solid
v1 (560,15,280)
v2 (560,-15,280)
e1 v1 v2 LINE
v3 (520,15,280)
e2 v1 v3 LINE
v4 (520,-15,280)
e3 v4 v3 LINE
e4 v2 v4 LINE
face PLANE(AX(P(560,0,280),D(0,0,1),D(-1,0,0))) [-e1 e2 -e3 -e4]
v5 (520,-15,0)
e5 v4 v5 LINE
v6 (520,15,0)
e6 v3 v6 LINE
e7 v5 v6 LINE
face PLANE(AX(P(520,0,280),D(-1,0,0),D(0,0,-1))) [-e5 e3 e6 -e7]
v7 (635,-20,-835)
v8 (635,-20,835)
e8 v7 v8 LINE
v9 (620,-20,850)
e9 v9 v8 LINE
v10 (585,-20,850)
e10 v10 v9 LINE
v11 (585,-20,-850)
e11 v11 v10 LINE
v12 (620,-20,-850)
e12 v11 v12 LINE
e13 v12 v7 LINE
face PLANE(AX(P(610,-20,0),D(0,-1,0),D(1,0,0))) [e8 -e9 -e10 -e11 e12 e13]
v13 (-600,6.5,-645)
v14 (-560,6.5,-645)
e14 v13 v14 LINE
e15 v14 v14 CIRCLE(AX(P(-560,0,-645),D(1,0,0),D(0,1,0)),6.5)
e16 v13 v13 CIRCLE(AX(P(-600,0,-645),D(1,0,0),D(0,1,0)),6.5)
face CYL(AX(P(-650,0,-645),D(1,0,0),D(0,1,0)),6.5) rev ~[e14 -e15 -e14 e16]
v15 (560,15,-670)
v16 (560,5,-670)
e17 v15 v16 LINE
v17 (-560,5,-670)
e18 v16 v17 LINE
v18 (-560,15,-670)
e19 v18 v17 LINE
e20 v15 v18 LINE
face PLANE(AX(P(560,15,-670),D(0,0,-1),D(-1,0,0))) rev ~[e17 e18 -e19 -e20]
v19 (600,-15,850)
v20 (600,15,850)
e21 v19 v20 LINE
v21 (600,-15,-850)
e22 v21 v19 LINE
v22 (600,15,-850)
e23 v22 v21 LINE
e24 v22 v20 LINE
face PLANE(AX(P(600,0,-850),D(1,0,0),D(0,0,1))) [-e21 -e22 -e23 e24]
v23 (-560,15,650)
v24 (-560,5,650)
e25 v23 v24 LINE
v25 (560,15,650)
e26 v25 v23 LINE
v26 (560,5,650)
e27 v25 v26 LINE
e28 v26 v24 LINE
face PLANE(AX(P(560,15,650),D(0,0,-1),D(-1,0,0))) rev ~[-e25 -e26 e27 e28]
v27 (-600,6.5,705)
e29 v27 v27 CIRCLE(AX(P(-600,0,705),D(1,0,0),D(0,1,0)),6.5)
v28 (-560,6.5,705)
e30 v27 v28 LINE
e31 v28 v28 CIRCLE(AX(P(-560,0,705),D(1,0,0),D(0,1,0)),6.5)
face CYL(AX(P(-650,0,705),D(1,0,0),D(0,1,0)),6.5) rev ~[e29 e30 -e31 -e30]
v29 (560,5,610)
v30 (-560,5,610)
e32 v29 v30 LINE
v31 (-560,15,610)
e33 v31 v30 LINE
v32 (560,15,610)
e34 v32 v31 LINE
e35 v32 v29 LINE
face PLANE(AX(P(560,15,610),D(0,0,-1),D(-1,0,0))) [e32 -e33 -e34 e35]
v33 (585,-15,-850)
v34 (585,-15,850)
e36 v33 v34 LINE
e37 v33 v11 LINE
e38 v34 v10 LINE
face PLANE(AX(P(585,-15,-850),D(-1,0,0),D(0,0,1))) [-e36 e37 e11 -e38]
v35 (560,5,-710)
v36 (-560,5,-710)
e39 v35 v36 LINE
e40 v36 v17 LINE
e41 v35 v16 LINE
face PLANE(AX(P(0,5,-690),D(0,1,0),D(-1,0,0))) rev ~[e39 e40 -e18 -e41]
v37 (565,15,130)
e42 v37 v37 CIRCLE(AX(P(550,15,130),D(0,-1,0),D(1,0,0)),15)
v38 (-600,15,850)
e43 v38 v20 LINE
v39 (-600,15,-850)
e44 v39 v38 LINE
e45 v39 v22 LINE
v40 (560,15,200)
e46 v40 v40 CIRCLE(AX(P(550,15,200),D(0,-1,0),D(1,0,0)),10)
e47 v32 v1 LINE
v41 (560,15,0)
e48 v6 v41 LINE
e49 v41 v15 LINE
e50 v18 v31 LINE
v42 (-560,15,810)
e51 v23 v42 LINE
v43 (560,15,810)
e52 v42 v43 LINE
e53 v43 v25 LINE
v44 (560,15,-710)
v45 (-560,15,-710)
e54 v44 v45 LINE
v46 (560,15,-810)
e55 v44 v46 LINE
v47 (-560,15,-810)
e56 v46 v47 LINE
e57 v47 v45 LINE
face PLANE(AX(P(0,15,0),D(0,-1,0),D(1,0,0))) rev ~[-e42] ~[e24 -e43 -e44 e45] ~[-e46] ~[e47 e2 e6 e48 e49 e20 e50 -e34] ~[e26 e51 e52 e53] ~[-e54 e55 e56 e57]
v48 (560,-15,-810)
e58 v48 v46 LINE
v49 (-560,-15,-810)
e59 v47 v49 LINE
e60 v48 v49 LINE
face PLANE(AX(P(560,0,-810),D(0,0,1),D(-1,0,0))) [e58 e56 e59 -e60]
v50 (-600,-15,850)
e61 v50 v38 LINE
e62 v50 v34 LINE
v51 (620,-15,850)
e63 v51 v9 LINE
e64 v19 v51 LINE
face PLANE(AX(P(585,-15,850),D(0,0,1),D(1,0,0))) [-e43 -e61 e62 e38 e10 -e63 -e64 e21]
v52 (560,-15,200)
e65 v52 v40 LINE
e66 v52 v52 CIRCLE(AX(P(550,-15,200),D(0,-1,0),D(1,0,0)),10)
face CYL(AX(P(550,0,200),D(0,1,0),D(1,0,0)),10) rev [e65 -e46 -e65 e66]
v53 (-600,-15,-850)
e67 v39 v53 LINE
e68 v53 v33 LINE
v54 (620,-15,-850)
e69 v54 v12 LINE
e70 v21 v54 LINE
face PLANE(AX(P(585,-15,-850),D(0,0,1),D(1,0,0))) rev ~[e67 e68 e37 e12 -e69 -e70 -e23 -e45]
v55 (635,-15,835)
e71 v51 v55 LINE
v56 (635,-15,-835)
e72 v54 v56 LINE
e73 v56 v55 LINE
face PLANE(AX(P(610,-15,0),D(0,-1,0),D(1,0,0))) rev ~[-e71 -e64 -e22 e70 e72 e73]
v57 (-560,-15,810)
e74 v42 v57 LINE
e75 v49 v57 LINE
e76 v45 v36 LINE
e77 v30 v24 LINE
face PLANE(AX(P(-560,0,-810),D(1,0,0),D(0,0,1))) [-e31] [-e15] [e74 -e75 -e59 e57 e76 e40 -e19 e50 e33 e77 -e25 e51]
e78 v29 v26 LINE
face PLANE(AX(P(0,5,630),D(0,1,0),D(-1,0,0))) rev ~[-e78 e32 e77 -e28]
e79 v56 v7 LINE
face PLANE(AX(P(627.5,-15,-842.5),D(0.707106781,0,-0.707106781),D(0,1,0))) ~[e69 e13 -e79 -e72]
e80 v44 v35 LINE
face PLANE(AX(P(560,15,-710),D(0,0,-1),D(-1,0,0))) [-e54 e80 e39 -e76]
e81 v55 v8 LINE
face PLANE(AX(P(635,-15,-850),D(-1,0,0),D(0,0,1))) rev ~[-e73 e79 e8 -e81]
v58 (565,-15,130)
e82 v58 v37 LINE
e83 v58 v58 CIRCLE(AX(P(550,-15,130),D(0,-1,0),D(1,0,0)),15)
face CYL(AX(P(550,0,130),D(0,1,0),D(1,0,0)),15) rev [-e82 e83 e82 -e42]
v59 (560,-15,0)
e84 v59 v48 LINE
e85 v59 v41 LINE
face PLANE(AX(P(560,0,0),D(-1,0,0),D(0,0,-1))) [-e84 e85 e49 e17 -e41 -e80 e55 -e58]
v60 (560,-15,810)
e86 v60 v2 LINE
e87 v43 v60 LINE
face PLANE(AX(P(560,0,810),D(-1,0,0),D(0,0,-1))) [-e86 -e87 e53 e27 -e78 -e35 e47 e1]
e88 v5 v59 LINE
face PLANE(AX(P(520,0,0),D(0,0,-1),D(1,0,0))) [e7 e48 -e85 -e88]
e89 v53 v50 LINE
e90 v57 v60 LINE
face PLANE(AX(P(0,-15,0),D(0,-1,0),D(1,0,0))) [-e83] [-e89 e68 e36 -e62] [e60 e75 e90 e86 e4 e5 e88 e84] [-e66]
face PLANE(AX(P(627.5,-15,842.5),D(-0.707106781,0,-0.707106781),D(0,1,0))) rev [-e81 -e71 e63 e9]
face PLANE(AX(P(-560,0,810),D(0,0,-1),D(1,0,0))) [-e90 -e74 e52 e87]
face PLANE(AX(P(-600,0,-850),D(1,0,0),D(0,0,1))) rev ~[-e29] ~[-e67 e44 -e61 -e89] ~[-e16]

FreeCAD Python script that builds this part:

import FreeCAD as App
import Part
import Sketcher
from FreeCAD import Vector


def edges_at(feature, points):
    """Names of the edges that pass closest to the given points."""
    edges = feature.Shape.Edges
    near = lambda p: min(range(len(edges)), key=lambda i: edges[i].distToShape(Part.Vertex(*p))[0])
    return sorted({f"Edge{near(p) + 1}" for p in points})

doc = App.newDocument("Part")
body = doc.addObject("PartDesign::Body", "Body")

# Sketch on XZ plane
sketch1 = doc.addObject("Sketcher::SketchObject", "Sketch")
body.addObject(sketch1)
sketch1.AttachmentSupport = (doc.XZ_Plane, [""])
sketch1.MapMode = "FlatFace"
sketch1.addGeometry([
    Part.LineSegment(Vector(-600, 850, 0), Vector(-600, -850, 0)),  # 0
    Part.LineSegment(Vector(-600, -850, 0), Vector(600, -850, 0)),  # 1
    Part.LineSegment(Vector(600, -850, 0), Vector(600, 850, 0)),  # 2
    Part.LineSegment(Vector(600, 850, 0), Vector(-600, 850, 0)),  # 3
    Part.LineSegment(Vector(560, -810, 0), Vector(-560, -810, 0)),  # 4
    Part.LineSegment(Vector(-560, -810, 0), Vector(-560, 810, 0)),  # 5
    Part.LineSegment(Vector(-560, 810, 0), Vector(560, 810, 0)),  # 6
    Part.LineSegment(Vector(560, 810, 0), Vector(560, 280, 0)),  # 7
    Part.LineSegment(Vector(560, 280, 0), Vector(520, 280, 0)),  # 8
    Part.LineSegment(Vector(520, 280, 0), Vector(520, 0, 0)),  # 9
    Part.LineSegment(Vector(520, 0, 0), Vector(560, 0, 0)),  # 10
    Part.LineSegment(Vector(560, 0, 0), Vector(560, -810, 0)),  # 11
    Part.Circle(Vector(550, 130, 0), Vector(0, 0, 1), 15),  # 12
    Part.Circle(Vector(550, 200, 0), Vector(0, 0, 1), 10),  # 13
], False)
sketch1.addConstraint([
    Sketcher.Constraint("Coincident", 0, 2, 1, 1),
    Sketcher.Constraint("Coincident", 1, 2, 2, 1),
    Sketcher.Constraint("Coincident", 2, 2, 3, 1),
    Sketcher.Constraint("Coincident", 3, 2, 0, 1),
    Sketcher.Constraint("Coincident", 4, 2, 5, 1),
    Sketcher.Constraint("Coincident", 5, 2, 6, 1),
    Sketcher.Constraint("Coincident", 6, 2, 7, 1),
    Sketcher.Constraint("Coincident", 7, 2, 8, 1),
    Sketcher.Constraint("Coincident", 8, 2, 9, 1),
    Sketcher.Constraint("Coincident", 9, 2, 10, 1),
    Sketcher.Constraint("Coincident", 10, 2, 11, 1),
    Sketcher.Constraint("Coincident", 11, 2, 4, 1),
    Sketcher.Constraint("Vertical", 0),
    Sketcher.Constraint("Horizontal", 1),
    Sketcher.Constraint("Vertical", 2),
    Sketcher.Constraint("Horizontal", 3),
    Sketcher.Constraint("Horizontal", 4),
    Sketcher.Constraint("Vertical", 5),
    Sketcher.Constraint("Horizontal", 6),
    Sketcher.Constraint("Vertical", 7),
    Sketcher.Constraint("Horizontal", 8),
    Sketcher.Constraint("Vertical", 9),
    Sketcher.Constraint("Horizontal", 10),
    Sketcher.Constraint("Vertical", 11),
    Sketcher.Constraint("Symmetric", 0, 2, 2, 2, -1, 1),
    Sketcher.Constraint("Symmetric", 4, 2, 6, 2, -1, 1),
    Sketcher.Constraint("PointOnObject", 9, 2, -1),
    Sketcher.Constraint("Vertical", 12, 3, 13, 3),
    Sketcher.Constraint("Vertical", 7, 2, 10, 2),
    Sketcher.Constraint("Diameter", 12, 30.0),
    Sketcher.Constraint("Diameter", 13, 20.0),
    Sketcher.Constraint("DistanceX", 1, 1, 1, 2, 1200.0),
    Sketcher.Constraint("DistanceX", 4, 2, 4, 1, 1120.0),
    Sketcher.Constraint("DistanceX", 8, 2, 8, 1, 40.0),
    Sketcher.Constraint("DistanceY", 0, 2, 0, 1, 1700.0),
    Sketcher.Constraint("DistanceY", 5, 1, 5, 2, 1620.0),
    Sketcher.Constraint("DistanceY", 7, 2, 7, 1, 530.0),
    Sketcher.Constraint("DistanceX", -1, 1, 12, 3, 550.0),
    Sketcher.Constraint("DistanceY", -1, 1, 12, 3, 130.0),
    Sketcher.Constraint("DistanceY", -1, 1, 13, 3, 200.0),
])
pad1 = doc.addObject("PartDesign::Pad", "Pad")
body.addObject(pad1)
pad1.Profile = sketch1
pad1.Length = 30
pad1.Midplane = True

# Sketch on XZ plane
sketch2 = doc.addObject("Sketcher::SketchObject", "Sketch001")
body.addObject(sketch2)
sketch2.AttachmentSupport = (doc.XZ_Plane, [""])
sketch2.MapMode = "FlatFace"
sketch2.AttachmentOffset = App.Placement(Vector(0, 0, -15), App.Rotation())
sketch2.addGeometry([
    Part.LineSegment(Vector(560, 650, 0), Vector(560, 610, 0)),  # 0
    Part.LineSegment(Vector(560, 610, 0), Vector(-560, 610, 0)),  # 1
    Part.LineSegment(Vector(-560, 610, 0), Vector(-560, 650, 0)),  # 2
    Part.LineSegment(Vector(-560, 650, 0), Vector(560, 650, 0)),  # 3
    Part.LineSegment(Vector(560, -670, 0), Vector(560, -710, 0)),  # 4
    Part.LineSegment(Vector(560, -710, 0), Vector(-560, -710, 0)),  # 5
    Part.LineSegment(Vector(-560, -710, 0), Vector(-560, -670, 0)),  # 6
    Part.LineSegment(Vector(-560, -670, 0), Vector(560, -670, 0)),  # 7
], False)
sketch2.addConstraint([
    Sketcher.Constraint("Coincident", 0, 2, 1, 1),
    Sketcher.Constraint("Coincident", 1, 2, 2, 1),
    Sketcher.Constraint("Coincident", 2, 2, 3, 1),
    Sketcher.Constraint("Coincident", 3, 2, 0, 1),
    Sketcher.Constraint("Coincident", 4, 2, 5, 1),
    Sketcher.Constraint("Coincident", 5, 2, 6, 1),
    Sketcher.Constraint("Coincident", 6, 2, 7, 1),
    Sketcher.Constraint("Coincident", 7, 2, 4, 1),
    Sketcher.Constraint("Vertical", 0),
    Sketcher.Constraint("Horizontal", 1),
    Sketcher.Constraint("Vertical", 2),
    Sketcher.Constraint("Horizontal", 3),
    Sketcher.Constraint("Vertical", 4),
    Sketcher.Constraint("Horizontal", 5),
    Sketcher.Constraint("Vertical", 6),
    Sketcher.Constraint("Horizontal", 7),
    Sketcher.Constraint("Vertical", 3, 2, 4, 2),
    Sketcher.Constraint("Vertical", 2, 2, 5, 2),
    Sketcher.Constraint("Equal", 2, 4),
    Sketcher.Constraint("DistanceX", 1, 2, 1, 1, 1120.0),
    Sketcher.Constraint("DistanceY", 0, 2, 0, 1, 40.0),
    Sketcher.Constraint("DistanceX", -1, 1, 0, 2, 560.0),
    Sketcher.Constraint("DistanceY", -1, 1, 0, 2, 610.0),
    Sketcher.Constraint("DistanceY", 4, 2, -1, 1, 710.0),
])
pad2 = doc.addObject("PartDesign::Pad", "Pad001")
body.addObject(pad2)
pad2.Profile = sketch2
pad2.Length = 10

# Sketch on YZ plane
sketch3 = doc.addObject("Sketcher::SketchObject", "Sketch002")
body.addObject(sketch3)
sketch3.AttachmentSupport = (doc.YZ_Plane, [""])
sketch3.MapMode = "FlatFace"
sketch3.AttachmentOffset = App.Placement(Vector(0, 0, -600), App.Rotation())
sketch3.addGeometry(Part.Circle(Vector(0, -645, 0), Vector(0, 0, 1), 6.5), False)
sketch3.addConstraint([
    Sketcher.Constraint("PointOnObject", 0, 3, -2),
    Sketcher.Constraint("Diameter", 0, 13.0),
    Sketcher.Constraint("DistanceY", 0, 3, -1, 1, 645.0),
])
doc.recompute()
hole = doc.addObject("PartDesign::Hole", "Hole")
body.addObject(hole)
hole.Profile = sketch3
hole.ThreadType = "None"
hole.Diameter = 13
hole.DepthType = "Dimension"
hole.Depth = 50
hole.DrillPoint = "Angled"
hole.DrillPointAngle = 118
hole.Reversed = True

# Sketch on YZ plane
sketch4 = doc.addObject("Sketcher::SketchObject", "Sketch003")
body.addObject(sketch4)
sketch4.AttachmentSupport = (doc.YZ_Plane, [""])
sketch4.MapMode = "FlatFace"
sketch4.AttachmentOffset = App.Placement(Vector(0, 0, -600), App.Rotation())
sketch4.addGeometry(Part.Circle(Vector(0, 705, 0), Vector(0, 0, 1), 6.5), False)
sketch4.addConstraint([
    Sketcher.Constraint("PointOnObject", 0, 3, -2),
    Sketcher.Constraint("Diameter", 0, 13.0),
    Sketcher.Constraint("DistanceY", -1, 1, 0, 3, 705.0),
])
doc.recompute()
hole2 = doc.addObject("PartDesign::Hole", "Hole001")
body.addObject(hole2)
hole2.Profile = sketch4
hole2.ThreadType = "None"
hole2.Diameter = 13
hole2.DepthType = "Dimension"
hole2.Depth = 50
hole2.DrillPoint = "Angled"
hole2.DrillPointAngle = 118
hole2.Reversed = True

# Sketch on XZ plane
sketch5 = doc.addObject("Sketcher::SketchObject", "Sketch004")
body.addObject(sketch5)
sketch5.AttachmentSupport = (doc.XZ_Plane, [""])
sketch5.MapMode = "FlatFace"
sketch5.AttachmentOffset = App.Placement(Vector(0, 0, 15), App.Rotation())
sketch5.addGeometry([
    Part.LineSegment(Vector(585, 850, 0), Vector(585, -850, 0)),
    Part.LineSegment(Vector(585, -850, 0), Vector(635, -850, 0)),
    Part.LineSegment(Vector(635, -850, 0), Vector(635, 850, 0)),
    Part.LineSegment(Vector(635, 850, 0), Vector(585, 850, 0)),
], False)
sketch5.addConstraint([
    Sketcher.Constraint("Coincident", 0, 2, 1, 1),
    Sketcher.Constraint("Coincident", 1, 2, 2, 1),
    Sketcher.Constraint("Coincident", 2, 2, 3, 1),
    Sketcher.Constraint("Coincident", 3, 2, 0, 1),
    Sketcher.Constraint("Vertical", 0),
    Sketcher.Constraint("Horizontal", 1),
    Sketcher.Constraint("Vertical", 2),
    Sketcher.Constraint("Horizontal", 3),
    Sketcher.Constraint("DistanceX", 1, 1, 1, 2, 50.0),
    Sketcher.Constraint("DistanceY", 0, 2, 0, 1, 1700.0),
    Sketcher.Constraint("DistanceX", -1, 1, 0, 2, 585.0),
    Sketcher.Constraint("DistanceY", 0, 2, -1, 1, 850.0),
])
pad3 = doc.addObject("PartDesign::Pad", "Pad002")
body.addObject(pad3)
pad3.Profile = sketch5
pad3.Length = 5
doc.recompute()

chamfer = doc.addObject("PartDesign::Chamfer", "Chamfer")
body.addObject(chamfer)
chamfer.Base = (pad3, edges_at(pad3, [(635, -17.5, -850), (635, -17.5, 850)]))
chamfer.Size = 15

doc.recompute()
